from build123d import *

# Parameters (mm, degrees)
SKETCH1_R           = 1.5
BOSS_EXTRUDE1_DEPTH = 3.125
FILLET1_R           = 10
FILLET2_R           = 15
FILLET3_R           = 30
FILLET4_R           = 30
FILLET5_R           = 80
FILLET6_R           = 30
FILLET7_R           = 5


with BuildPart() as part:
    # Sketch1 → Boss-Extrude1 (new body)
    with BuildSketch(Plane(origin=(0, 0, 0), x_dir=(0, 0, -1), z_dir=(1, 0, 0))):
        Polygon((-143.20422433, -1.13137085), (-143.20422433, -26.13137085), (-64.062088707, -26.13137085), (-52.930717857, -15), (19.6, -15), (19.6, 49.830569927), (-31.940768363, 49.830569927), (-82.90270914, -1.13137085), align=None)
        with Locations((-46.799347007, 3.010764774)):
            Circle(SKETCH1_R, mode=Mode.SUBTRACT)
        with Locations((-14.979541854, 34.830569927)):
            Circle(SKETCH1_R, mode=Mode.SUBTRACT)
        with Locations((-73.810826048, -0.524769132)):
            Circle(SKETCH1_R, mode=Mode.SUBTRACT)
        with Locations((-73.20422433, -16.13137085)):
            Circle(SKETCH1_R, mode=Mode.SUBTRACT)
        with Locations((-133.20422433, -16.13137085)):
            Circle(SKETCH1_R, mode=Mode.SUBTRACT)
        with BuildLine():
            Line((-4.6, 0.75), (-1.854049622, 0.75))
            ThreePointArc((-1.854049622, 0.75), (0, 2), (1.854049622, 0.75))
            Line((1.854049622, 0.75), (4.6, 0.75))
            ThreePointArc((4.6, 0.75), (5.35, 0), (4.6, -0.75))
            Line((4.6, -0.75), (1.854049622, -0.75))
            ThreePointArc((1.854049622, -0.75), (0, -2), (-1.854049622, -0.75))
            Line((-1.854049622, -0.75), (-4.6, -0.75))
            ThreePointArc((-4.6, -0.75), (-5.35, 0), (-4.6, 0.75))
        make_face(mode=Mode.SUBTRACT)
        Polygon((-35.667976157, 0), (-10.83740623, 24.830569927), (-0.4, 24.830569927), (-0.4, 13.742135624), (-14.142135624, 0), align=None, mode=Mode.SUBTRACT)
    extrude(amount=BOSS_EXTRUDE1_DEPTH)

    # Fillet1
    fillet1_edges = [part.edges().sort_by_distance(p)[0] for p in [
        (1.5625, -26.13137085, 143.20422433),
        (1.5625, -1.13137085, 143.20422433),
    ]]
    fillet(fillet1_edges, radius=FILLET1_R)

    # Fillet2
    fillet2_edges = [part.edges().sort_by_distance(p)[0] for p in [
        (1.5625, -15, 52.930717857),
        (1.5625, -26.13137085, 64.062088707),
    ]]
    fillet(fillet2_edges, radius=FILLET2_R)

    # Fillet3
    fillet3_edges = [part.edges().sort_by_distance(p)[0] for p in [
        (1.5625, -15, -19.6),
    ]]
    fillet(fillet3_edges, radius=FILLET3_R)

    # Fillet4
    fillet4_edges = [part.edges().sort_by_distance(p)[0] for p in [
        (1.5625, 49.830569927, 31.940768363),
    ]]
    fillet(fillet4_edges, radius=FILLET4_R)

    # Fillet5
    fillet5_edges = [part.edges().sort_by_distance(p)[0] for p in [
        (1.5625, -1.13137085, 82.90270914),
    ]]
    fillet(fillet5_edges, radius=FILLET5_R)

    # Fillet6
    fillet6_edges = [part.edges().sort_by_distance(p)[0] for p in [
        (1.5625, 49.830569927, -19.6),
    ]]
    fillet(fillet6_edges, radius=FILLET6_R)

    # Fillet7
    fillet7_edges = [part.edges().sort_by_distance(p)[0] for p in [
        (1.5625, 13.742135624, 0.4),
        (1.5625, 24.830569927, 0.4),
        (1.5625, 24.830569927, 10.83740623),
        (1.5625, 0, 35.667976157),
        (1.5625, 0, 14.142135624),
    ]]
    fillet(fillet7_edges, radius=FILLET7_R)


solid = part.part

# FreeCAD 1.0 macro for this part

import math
import FreeCAD as App
import Part
import Sketcher
from FreeCAD import Vector
Q = App.Units.Quantity


def edges_at(feature, points):
    """Names of the edges that pass closest to the given points."""
    edges = feature.Shape.Edges
    near = lambda p: min(range(len(edges)), key=lambda i: edges[i].distToShape(Part.Vertex(*p))[0])
    return sorted({f"Edge{near(p) + 1}" for p in points})


def add_polygon(sketch, points):
    """Adds a closed chain of lines whose ends are joined by coincident constraints."""
    first, n = sketch.GeometryCount, len(points)
    for a, b in zip(points, points[1:] + points[:1]):
        sketch.addGeometry(Part.LineSegment(App.Vector(*a, 0), App.Vector(*b, 0)), False)
    for i in range(n):
        sketch.addConstraint(Sketcher.Constraint("Coincident", first + i, 2, first + (i + 1) % n, 1))

doc = App.newDocument("Part")
body = doc.addObject("PartDesign::Body", "Body")

# Sketch on YZ plane
sketch1 = doc.addObject("Sketcher::SketchObject", "Sketch")
body.addObject(sketch1)
sketch1.AttachmentSupport = (doc.YZ_Plane, [""])
sketch1.MapMode = "FlatFace"
add_polygon(sketch1, [(-1.1, 143.2), (-26.1, 143.2), (-26.1, 64.1), (-15, 52.9), (-15, -19.6), (49.8, -19.6), (49.8, 31.9), (-1.1, 82.9)])  # lines 0-7
sketch1.addGeometry(Part.Circle(Vector(-16.1, 133.2, 0), Vector(0, 0, 1), 1.5), False)  # 8
sketch1.addGeometry(Part.Circle(Vector(-16.1, 73.2, 0), Vector(0, 0, 1), 1.5), False)  # 9
sketch1.addGeometry(Part.Circle(Vector(-0.5, 73.8, 0), Vector(0, 0, 1), 1.5), False)  # 10
sketch1.addGeometry(Part.Circle(Vector(3, 46.8, 0), Vector(0, 0, 1), 1.5), False)  # 11
sketch1.addGeometry(Part.ArcOfCircle(Part.Circle(Vector(0, 4.6, 0), Vector(0, 0, 1), 0.8), math.radians(0), math.radians(180)), False)  # 12
sketch1.addGeometry(Part.LineSegment(Vector(0.8, 4.6, 0), Vector(0.8, 1.9, 0)), False)  # 13
sketch1.addGeometry(Part.ArcOfCircle(Part.Circle(Vector(0, 0, 0), Vector(0, 0, 1), 2), math.radians(-68), math.radians(68)), False)  # 14
sketch1.addGeometry(Part.LineSegment(Vector(0.8, -1.9, 0), Vector(0.8, -4.6, 0)), False)  # 15
sketch1.addGeometry(Part.ArcOfCircle(Part.Circle(Vector(0, -4.6, 0), Vector(0, 0, 1), 0.8), math.radians(180), math.radians(360)), False)  # 16
sketch1.addGeometry(Part.LineSegment(Vector(-0.8, -4.6, 0), Vector(-0.8, -1.9, 0)), False)  # 17
sketch1.addGeometry(Part.ArcOfCircle(Part.Circle(Vector(0, 0, 0), Vector(0, 0, 1), 2), math.radians(112), math.radians(248)), False)  # 18
sketch1.addGeometry(Part.LineSegment(Vector(-0.8, 1.9, 0), Vector(-0.8, 4.6, 0)), False)  # 19
add_polygon(sketch1, [(0, 14.1), (0, 35.7), (24.8, 10.8), (24.8, 0.4), (13.7, 0.4)])  # lines 20-24
sketch1.addGeometry(Part.Circle(Vector(34.8, 15, 0), Vector(0, 0, 1), 1.5), False)  # 25
sketch1.addConstraint([
    Sketcher.Constraint("Tangent", 12, 1, 13, 1),
    Sketcher.Constraint("Coincident", 13, 2, 14, 2),
    Sketcher.Constraint("Coincident", 14, 1, 15, 1),
    Sketcher.Constraint("Tangent", 15, 2, 16, 2),
    Sketcher.Constraint("Tangent", 16, 1, 17, 1),
    Sketcher.Constraint("Coincident", 17, 2, 18, 2),
    Sketcher.Constraint("Coincident", 18, 1, 19, 1),
    Sketcher.Constraint("Tangent", 19, 2, 12, 2),
    Sketcher.Constraint("Horizontal", 0),
    Sketcher.Constraint("Vertical", 1),
    Sketcher.Constraint("Vertical", 3),
    Sketcher.Constraint("Horizontal", 4),
    Sketcher.Constraint("Vertical", 5),
    Sketcher.Constraint("Vertical", 7),
    Sketcher.Constraint("Vertical", 13),
    Sketcher.Constraint("Vertical", 15),
    Sketcher.Constraint("Vertical", 17),
    Sketcher.Constraint("Vertical", 19),
    Sketcher.Constraint("Vertical", 20),
    Sketcher.Constraint("Vertical", 22),
    Sketcher.Constraint("Horizontal", 23),
    Sketcher.Constraint("Coincident", 14, 3, -1, 1),
    Sketcher.Constraint("Coincident", 18, 3, -1, 1),
    Sketcher.Constraint("Equal", 8, 9),
    Sketcher.Constraint("Equal", 9, 10),
    Sketcher.Constraint("Equal", 10, 11),
    Sketcher.Constraint("Equal", 12, 16),
    Sketcher.Constraint("Equal", 14, 18),
    Sketcher.Constraint("Equal", 11, 25),
    Sketcher.Constraint("Symmetric", 12, 3, 16, 3, -1, 1),
    Sketcher.Constraint("PointOnObject", 12, 3, -2),
    Sketcher.Constraint("PointOnObject", 20, 2, -2),
    Sketcher.Constraint("Parallel", 2, 6),
    Sketcher.Constraint("Parallel", 6, 21),
    Sketcher.Constraint("Parallel", 21, 24),
    Sketcher.Constraint("Vertical", 8, 3, 9, 3),
    Sketcher.Constraint("Diameter", 8, 3.0),
    Sketcher.Constraint("Radius", 14, 2.0),
    Sketcher.Constraint("DistanceX", 0, 2, 0, 1, 25.0),
    Sketcher.Constraint("Angle", 2, Q("-45 deg")),
    Sketcher.Constraint("Radius", 12, 0.75),
    Sketcher.Constraint("DistanceX", 2, 2, -1, 1, 15.0),
    Sketcher.Constraint("DistanceY", 9, 3, 8, 3, 60.0),
    Sketcher.Constraint("DistanceX", 0, 2, 8, 3, 10.0),
    Sketcher.Constraint("DistanceY", 8, 3, 0, 2, 10.0),
    Sketcher.Constraint("DistanceY", 3, 2, 16, 3, 15.0),
    Sketcher.Constraint("DistanceX", 25, 3, 4, 2, 15.0),
    Sketcher.Constraint("DistanceX", 21, 2, 25, 3, 10.0),
    Sketcher.Constraint("DistanceY", -1, 1, 12, 3, 4.6),
    Sketcher.Constraint("DistanceY", -1, 1, 22, 2, 0.4),
    Sketcher.Constraint("DistanceX", 4, 1, 4, 2, 64.83057),
    Sketcher.Constraint("DistanceY", 5, 1, 5, 2, 51.540768),
    Sketcher.Constraint("DistanceY", 20, 1, 20, 2, 21.525841),
    Sketcher.Constraint("DistanceX", 9, 3, 10, 3, 15.606602),
    Sketcher.Constraint("DistanceY", 9, 3, 10, 3, 0.606602),
    Sketcher.Constraint("DistanceX", 23, 2, 23, 1, 11.088434),
    Sketcher.Constraint("DistanceY", 1, 2, 1, 1, 79.142136),
    Sketcher.Constraint("DistanceY", 3, 2, 3, 1, 72.530718),
    Sketcher.Constraint("DistanceX", 8, 3, -1, 1, 16.131371),
    Sketcher.Constraint("DistanceY", -1, 1, 25, 3, 14.979542),
    Sketcher.Constraint("DistanceY", 11, 3, 10, 3, 27.011479),
    Sketcher.Constraint("DistanceX", -1, 1, 11, 3, 3.010765),
])
pad1 = doc.addObject("PartDesign::Pad", "Pad")
body.addObject(pad1)
pad1.Profile = sketch1
pad1.Length = 3.125
doc.recompute()

fillet = doc.addObject("PartDesign::Fillet", "Fillet")
body.addObject(fillet)
fillet.Base = (pad1, edges_at(pad1, [(1.562, -26.131, 143.204), (1.562, -1.131, 143.204)]))
fillet.Radius = 10
doc.recompute()

fillet2 = doc.addObject("PartDesign::Fillet", "Fillet001")
body.addObject(fillet2)
fillet2.Base = (fillet, edges_at(fillet, [(1.562, -15, 52.931), (1.562, -26.131, 64.062)]))
fillet2.Radius = 15
doc.recompute()

fillet3 = doc.addObject("PartDesign::Fillet", "Fillet002")
body.addObject(fillet3)
fillet3.Base = (fillet2, edges_at(fillet2, [(1.562, -15, -19.6)]))
fillet3.Radius = 30
doc.recompute()

fillet4 = doc.addObject("PartDesign::Fillet", "Fillet003")
body.addObject(fillet4)
fillet4.Base = (fillet3, edges_at(fillet3, [(1.562, 49.831, 31.941)]))
fillet4.Radius = 30
doc.recompute()

fillet5 = doc.addObject("PartDesign::Fillet", "Fillet004")
body.addObject(fillet5)
fillet5.Base = (fillet4, edges_at(fillet4, [(1.562, -1.131, 82.903)]))
fillet5.Radius = 80
doc.recompute()

fillet6 = doc.addObject("PartDesign::Fillet", "Fillet005")
body.addObject(fillet6)
fillet6.Base = (fillet5, edges_at(fillet5, [(1.562, 49.831, -19.6)]))
fillet6.Radius = 30
doc.recompute()

fillet7 = doc.addObject("PartDesign::Fillet", "Fillet006")
body.addObject(fillet7)
fillet7.Base = (fillet6, edges_at(fillet6, [
    (1.562, 13.742, 0.4),
    (1.562, 24.831, 0.4),
    (1.562, 24.831, 10.837),
    (1.562, 0, 35.668),
    (1.562, 0, 14.142),
]))
fillet7.Radius = 5

doc.recompute()
